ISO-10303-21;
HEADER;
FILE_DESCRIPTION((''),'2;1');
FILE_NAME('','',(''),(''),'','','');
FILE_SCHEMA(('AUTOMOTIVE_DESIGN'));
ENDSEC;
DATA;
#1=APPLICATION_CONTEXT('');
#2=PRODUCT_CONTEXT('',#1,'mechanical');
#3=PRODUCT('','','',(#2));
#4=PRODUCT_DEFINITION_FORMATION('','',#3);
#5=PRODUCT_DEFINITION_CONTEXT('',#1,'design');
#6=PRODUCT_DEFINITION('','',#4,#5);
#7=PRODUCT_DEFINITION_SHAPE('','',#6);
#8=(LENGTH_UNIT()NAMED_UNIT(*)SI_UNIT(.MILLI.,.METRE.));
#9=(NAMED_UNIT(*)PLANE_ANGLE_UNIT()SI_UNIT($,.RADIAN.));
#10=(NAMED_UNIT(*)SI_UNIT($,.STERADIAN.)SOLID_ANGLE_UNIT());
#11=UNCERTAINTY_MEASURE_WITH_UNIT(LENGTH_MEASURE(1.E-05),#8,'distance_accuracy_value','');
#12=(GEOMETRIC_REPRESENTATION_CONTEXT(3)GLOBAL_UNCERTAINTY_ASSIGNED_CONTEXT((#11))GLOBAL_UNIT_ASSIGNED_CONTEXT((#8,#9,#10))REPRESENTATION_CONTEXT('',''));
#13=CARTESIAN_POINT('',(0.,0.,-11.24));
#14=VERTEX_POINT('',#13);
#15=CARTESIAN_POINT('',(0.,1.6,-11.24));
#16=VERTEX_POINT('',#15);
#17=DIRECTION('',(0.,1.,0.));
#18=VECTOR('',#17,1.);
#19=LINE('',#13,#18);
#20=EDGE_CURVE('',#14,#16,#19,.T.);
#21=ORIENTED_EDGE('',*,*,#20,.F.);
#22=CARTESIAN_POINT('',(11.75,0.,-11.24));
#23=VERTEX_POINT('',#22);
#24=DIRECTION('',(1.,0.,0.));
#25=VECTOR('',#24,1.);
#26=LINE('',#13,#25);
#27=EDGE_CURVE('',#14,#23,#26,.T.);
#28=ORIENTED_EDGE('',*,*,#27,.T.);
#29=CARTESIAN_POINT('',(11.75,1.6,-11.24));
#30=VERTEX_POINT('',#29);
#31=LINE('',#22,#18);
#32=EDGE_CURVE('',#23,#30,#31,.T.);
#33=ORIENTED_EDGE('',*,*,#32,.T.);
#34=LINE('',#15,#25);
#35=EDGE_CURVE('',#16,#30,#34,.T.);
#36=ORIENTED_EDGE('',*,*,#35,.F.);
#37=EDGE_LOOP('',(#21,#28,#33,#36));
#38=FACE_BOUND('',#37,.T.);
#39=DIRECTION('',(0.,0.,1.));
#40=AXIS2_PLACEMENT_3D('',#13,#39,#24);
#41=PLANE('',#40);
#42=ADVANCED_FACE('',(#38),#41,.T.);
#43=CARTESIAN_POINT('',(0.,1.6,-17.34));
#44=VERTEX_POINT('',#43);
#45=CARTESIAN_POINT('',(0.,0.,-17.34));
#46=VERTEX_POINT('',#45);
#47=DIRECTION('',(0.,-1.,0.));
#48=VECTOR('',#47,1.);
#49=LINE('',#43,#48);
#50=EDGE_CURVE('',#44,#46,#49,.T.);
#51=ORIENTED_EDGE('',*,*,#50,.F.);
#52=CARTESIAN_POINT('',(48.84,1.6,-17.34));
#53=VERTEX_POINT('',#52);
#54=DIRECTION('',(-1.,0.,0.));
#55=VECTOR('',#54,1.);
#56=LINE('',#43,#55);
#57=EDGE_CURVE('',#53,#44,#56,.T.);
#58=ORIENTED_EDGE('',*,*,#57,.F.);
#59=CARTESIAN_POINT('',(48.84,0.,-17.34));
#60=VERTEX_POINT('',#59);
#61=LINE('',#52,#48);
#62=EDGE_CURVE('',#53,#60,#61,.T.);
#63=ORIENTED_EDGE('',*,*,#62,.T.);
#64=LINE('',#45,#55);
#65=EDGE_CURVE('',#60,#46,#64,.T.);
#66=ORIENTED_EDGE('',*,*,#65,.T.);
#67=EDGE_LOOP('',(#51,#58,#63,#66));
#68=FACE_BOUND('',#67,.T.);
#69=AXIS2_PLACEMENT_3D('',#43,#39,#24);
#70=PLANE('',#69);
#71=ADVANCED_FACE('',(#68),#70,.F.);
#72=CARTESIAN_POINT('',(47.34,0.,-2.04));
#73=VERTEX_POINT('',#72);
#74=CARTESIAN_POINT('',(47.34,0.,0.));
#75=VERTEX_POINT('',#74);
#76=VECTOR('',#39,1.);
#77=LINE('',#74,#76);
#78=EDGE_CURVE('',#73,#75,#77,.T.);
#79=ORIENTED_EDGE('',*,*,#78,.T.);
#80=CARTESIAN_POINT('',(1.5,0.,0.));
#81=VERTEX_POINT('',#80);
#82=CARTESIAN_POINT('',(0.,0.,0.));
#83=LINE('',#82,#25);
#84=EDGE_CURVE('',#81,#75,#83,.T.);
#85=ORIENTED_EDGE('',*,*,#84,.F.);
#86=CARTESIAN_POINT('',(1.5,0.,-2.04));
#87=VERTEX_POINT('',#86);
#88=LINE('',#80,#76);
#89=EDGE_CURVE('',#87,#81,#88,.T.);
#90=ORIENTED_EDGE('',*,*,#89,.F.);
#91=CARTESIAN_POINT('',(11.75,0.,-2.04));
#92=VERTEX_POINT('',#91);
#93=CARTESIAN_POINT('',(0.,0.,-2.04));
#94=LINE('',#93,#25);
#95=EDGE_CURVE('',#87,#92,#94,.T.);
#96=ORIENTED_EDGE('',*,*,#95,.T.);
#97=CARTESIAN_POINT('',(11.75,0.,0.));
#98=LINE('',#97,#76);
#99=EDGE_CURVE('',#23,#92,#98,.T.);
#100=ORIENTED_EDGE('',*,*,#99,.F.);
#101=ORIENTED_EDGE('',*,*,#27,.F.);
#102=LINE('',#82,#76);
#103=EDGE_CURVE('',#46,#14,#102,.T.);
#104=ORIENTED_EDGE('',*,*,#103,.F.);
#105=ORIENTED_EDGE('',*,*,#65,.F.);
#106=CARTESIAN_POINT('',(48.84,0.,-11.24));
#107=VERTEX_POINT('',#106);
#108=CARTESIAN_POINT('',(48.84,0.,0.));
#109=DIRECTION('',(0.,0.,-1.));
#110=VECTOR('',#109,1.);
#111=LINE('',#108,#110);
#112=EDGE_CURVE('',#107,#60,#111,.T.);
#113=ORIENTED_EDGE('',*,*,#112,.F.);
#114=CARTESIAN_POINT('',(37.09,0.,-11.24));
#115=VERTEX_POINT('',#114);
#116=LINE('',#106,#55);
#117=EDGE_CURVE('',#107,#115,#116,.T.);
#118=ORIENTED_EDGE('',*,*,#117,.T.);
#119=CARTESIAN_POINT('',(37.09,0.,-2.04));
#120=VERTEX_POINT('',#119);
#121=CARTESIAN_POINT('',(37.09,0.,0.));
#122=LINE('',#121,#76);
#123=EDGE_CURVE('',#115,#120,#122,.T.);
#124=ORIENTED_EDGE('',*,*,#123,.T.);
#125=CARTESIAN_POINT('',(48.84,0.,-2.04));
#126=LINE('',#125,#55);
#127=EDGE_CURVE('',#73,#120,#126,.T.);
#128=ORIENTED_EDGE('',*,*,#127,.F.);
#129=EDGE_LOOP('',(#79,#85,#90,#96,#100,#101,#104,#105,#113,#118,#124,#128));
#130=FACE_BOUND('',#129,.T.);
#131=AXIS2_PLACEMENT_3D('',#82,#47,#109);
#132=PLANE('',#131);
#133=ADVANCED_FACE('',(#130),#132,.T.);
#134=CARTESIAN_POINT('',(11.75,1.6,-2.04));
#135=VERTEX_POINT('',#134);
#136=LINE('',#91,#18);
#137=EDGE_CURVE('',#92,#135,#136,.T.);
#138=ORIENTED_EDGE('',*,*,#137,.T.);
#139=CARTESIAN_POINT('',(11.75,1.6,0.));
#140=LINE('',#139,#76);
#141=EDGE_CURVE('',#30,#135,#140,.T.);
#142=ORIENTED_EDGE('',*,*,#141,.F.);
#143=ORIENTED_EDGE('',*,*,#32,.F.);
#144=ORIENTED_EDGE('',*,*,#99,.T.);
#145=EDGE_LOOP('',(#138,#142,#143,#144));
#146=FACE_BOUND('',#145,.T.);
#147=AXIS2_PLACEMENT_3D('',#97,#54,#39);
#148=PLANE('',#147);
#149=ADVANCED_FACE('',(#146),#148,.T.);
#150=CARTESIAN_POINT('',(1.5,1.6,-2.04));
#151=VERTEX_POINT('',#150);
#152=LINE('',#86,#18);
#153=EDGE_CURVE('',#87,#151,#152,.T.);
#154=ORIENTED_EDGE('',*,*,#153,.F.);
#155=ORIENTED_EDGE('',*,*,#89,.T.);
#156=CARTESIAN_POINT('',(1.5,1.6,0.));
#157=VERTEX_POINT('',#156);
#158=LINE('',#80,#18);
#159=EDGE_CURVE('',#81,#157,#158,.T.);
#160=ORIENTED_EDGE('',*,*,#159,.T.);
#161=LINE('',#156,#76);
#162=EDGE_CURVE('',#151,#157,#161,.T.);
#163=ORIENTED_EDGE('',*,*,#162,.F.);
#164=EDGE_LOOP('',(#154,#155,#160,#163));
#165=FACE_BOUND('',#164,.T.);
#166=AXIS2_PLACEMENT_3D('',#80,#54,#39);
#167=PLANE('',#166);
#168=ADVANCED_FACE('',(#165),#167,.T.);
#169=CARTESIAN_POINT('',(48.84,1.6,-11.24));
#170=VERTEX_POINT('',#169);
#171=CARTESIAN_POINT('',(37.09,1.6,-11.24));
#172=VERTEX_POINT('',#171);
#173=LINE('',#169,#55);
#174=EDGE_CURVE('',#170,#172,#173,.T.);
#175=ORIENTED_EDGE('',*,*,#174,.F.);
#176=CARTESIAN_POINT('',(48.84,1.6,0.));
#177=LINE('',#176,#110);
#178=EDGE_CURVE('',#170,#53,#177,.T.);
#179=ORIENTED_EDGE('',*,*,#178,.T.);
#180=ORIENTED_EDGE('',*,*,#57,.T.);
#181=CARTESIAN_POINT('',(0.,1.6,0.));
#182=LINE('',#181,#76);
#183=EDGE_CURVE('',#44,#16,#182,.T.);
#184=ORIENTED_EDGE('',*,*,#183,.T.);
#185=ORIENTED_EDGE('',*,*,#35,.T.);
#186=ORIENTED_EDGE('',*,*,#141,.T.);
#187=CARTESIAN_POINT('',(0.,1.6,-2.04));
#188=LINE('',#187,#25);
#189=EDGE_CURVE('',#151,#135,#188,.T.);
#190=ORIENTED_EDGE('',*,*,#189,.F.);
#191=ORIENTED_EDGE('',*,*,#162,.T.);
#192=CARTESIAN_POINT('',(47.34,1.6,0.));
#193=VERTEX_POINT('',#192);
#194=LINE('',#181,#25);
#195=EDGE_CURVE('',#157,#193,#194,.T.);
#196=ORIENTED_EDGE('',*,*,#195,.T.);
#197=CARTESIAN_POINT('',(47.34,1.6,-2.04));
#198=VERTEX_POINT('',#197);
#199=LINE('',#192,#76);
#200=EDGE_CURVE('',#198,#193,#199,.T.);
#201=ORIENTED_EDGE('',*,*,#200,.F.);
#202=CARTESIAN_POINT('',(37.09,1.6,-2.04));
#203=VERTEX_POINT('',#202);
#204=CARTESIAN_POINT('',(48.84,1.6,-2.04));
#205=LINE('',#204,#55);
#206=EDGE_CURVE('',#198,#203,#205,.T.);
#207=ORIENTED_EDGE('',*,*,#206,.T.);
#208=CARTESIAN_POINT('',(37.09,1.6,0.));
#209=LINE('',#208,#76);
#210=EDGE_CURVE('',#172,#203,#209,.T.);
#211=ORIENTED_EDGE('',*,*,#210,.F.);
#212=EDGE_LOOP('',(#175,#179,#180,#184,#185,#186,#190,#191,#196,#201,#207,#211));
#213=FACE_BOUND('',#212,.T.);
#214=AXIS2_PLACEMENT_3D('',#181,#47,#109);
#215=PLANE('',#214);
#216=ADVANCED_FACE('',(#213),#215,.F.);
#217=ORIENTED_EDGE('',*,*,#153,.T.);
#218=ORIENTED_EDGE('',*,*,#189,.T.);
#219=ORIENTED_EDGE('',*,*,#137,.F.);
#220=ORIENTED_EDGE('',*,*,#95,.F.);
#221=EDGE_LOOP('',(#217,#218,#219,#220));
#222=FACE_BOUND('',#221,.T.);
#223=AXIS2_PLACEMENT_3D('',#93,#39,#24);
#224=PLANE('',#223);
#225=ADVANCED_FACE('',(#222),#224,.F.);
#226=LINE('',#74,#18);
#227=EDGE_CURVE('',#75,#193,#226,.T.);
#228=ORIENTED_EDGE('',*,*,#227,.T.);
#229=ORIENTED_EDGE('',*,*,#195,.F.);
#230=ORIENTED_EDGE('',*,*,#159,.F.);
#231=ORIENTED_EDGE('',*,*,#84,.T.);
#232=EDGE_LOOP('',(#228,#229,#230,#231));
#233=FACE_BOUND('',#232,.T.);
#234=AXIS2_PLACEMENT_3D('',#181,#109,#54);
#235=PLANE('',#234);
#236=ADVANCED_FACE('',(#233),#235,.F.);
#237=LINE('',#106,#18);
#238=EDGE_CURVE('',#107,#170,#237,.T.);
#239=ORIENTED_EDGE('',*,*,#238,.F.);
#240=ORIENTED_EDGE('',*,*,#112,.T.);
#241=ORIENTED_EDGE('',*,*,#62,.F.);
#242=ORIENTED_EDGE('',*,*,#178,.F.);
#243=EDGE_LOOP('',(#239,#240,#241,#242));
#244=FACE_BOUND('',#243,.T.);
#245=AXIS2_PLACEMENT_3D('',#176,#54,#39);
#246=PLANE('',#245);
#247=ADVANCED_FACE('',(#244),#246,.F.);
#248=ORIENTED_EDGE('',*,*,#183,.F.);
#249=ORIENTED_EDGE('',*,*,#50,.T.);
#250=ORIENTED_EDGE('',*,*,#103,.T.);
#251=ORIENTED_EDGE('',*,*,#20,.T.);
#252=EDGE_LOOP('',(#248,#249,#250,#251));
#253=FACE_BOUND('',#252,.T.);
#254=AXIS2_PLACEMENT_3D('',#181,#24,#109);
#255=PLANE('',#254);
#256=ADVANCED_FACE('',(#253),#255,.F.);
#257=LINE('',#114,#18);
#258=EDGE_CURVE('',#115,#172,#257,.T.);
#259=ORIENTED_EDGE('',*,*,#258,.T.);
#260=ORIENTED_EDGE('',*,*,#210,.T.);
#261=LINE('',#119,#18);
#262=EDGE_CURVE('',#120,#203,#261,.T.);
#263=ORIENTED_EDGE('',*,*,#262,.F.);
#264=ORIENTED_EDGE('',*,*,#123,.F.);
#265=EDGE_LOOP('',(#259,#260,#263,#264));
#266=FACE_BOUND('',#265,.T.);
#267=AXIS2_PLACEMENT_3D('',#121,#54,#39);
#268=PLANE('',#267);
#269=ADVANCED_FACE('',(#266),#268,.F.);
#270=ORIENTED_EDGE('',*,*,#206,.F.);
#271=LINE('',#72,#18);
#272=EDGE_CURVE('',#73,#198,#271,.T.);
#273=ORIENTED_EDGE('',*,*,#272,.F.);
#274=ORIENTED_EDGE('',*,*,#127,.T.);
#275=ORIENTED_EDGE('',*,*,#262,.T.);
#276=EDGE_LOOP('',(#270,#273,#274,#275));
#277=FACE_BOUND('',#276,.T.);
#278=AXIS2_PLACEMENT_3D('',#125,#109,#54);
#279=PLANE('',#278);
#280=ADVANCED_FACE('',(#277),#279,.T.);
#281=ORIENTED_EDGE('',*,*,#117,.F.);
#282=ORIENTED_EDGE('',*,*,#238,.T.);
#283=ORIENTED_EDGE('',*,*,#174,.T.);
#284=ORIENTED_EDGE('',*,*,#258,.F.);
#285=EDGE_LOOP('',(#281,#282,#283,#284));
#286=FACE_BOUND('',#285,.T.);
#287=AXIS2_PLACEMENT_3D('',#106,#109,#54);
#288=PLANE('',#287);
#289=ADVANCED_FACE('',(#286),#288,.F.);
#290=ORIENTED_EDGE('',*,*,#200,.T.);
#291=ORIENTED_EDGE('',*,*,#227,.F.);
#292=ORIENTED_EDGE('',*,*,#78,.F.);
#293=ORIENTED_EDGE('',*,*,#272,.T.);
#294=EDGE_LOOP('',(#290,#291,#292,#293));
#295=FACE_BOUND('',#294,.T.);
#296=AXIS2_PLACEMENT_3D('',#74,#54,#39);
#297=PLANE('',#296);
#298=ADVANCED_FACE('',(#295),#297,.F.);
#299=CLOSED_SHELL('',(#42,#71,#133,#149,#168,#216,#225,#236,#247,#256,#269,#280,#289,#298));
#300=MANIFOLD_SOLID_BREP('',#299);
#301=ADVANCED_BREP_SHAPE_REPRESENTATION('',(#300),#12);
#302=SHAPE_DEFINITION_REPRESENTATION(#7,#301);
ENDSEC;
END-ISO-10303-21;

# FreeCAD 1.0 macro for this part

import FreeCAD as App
import Part
import Sketcher
Q = App.Units.Quantity


def add_polygon(sketch, points):
    """Adds a closed chain of lines whose ends are joined by coincident constraints."""
    first, n = sketch.GeometryCount, len(points)
    for a, b in zip(points, points[1:] + points[:1]):
        sketch.addGeometry(Part.LineSegment(App.Vector(*a, 0), App.Vector(*b, 0)), False)
    for i in range(n):
        sketch.addConstraint(Sketcher.Constraint("Coincident", first + i, 2, first + (i + 1) % n, 1))

doc = App.newDocument("Part")
body = doc.addObject("PartDesign::Body", "Body")

# Sketch on XZ plane
sketch1 = body.newObject("Sketcher::SketchObject", "Sketch")
sketch1.AttachmentSupport = (doc.getObject("XZ_Plane"), [""])
sketch1.MapMode = "FlatFace"
add_polygon(sketch1, [(0, -17), (0, 0), (49, 0), (49, -17)])  # lines 0-3
sketch1.addConstraint(Sketcher.Constraint("Vertical", 0))
sketch1.addConstraint(Sketcher.Constraint("Horizontal", 1))
sketch1.addConstraint(Sketcher.Constraint("Vertical", 2))
sketch1.addConstraint(Sketcher.Constraint("Horizontal", 3))
sketch1.addConstraint(Sketcher.Constraint("Coincident", 0, 2, -1, 1))
sketch1.addConstraint(Sketcher.Constraint("DistanceX", 1, 1, 1, 2, Q("48.84 mm")))
sketch1.addConstraint(Sketcher.Constraint("DistanceY", 0, 1, 0, 2, Q("17.34 mm")))
pad1 = body.newObject("PartDesign::Pad", "Pad")
pad1.Profile = sketch1
pad1.Length = 1.6
pad1.Reversed = True

# Sketch on XZ plane
sketch2 = body.newObject("Sketcher::SketchObject", "Sketch001")
sketch2.AttachmentSupport = (doc.getObject("XZ_Plane"), [""])
sketch2.MapMode = "FlatFace"
sketch2.AttachmentOffset = App.Placement(App.Vector(0, 0, -1.6), App.Rotation())
add_polygon(sketch2, [(11.8, -11.2), (0, -11.2), (0, 0), (1.5, 0), (1.5, -2), (11.8, -2)])  # lines 0-5
sketch2.addConstraint(Sketcher.Constraint("Horizontal", 0))
sketch2.addConstraint(Sketcher.Constraint("Vertical", 1))
sketch2.addConstraint(Sketcher.Constraint("Horizontal", 2))
sketch2.addConstraint(Sketcher.Constraint("Vertical", 3))
sketch2.addConstraint(Sketcher.Constraint("Horizontal", 4))
sketch2.addConstraint(Sketcher.Constraint("Vertical", 5))
sketch2.addConstraint(Sketcher.Constraint("Coincident", 1, 2, -1, 1))
sketch2.addConstraint(Sketcher.Constraint("DistanceX", 2, 1, 2, 2, Q("1.5 mm")))
sketch2.addConstraint(Sketcher.Constraint("DistanceY", 5, 2, 5, 1, Q("9.2 mm")))
sketch2.addConstraint(Sketcher.Constraint("DistanceX", 0, 2, 0, 1, Q("11.75 mm")))
sketch2.addConstraint(Sketcher.Constraint("DistanceY", 1, 1, 1, 2, Q("11.24 mm")))
pocket1 = body.newObject("PartDesign::Pocket", "Pocket")
pocket1.Profile = sketch2
pocket1.Length = 1.6
pocket1.Reversed = True
doc.recompute()

datumplane = body.newObject("PartDesign::Plane", "DatumPlane")
datumplane.AttachmentSupport = (doc.getObject("YZ_Plane"), [""])
datumplane.MapMode = "FlatFace"
datumplane.AttachmentOffset = App.Placement(App.Vector(0, 0, 24.42), App.Rotation())
mirrored = body.newObject("PartDesign::Mirrored", "Mirrored")
mirrored.Originals = [pocket1]
mirrored.MirrorPlane = (datumplane, [""])
body.Tip = mirrored

doc.recompute()
